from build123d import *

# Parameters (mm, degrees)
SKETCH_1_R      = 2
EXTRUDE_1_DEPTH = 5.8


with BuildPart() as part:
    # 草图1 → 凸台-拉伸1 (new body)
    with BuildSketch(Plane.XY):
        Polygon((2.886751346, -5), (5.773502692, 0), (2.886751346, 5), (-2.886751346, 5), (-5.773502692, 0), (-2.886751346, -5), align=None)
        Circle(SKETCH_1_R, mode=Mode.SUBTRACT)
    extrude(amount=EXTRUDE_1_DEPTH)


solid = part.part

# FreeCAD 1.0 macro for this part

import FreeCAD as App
import Part
import Sketcher
Q = App.Units.Quantity

doc = App.newDocument("Part")
body = doc.addObject("PartDesign::Body", "Body")

# Sketch on XY plane
sketch1 = body.newObject("Sketcher::SketchObject", "Sketch")
sketch1.AttachmentSupport = (doc.getObject("XY_Plane"), [""])
sketch1.MapMode = "FlatFace"
sketch1.addGeometry(Part.LineSegment(App.Vector(2.886751, -5, 0), App.Vector(5.773503, 0, 0)), False)
sketch1.addGeometry(Part.LineSegment(App.Vector(5.773503, 0, 0), App.Vector(2.886751, 5, 0)), False)
sketch1.addGeometry(Part.LineSegment(App.Vector(2.886751, 5, 0), App.Vector(-2.886751, 5, 0)), False)
sketch1.addGeometry(Part.LineSegment(App.Vector(-2.886751, 5, 0), App.Vector(-5.773503, 0, 0)), False)
sketch1.addGeometry(Part.LineSegment(App.Vector(-5.773503, 0, 0), App.Vector(-2.886751, -5, 0)), False)
sketch1.addGeometry(Part.LineSegment(App.Vector(-2.886751, -5, 0), App.Vector(2.886751, -5, 0)), False)
sketch1.addGeometry(Part.Circle(App.Vector(0, 0, 0), App.Vector(0, 0, 1), 2), False)
sketch1.addConstraint(Sketcher.Constraint("Coincident", 0, 2, 1, 1))
sketch1.addConstraint(Sketcher.Constraint("Coincident", 1, 2, 2, 1))
sketch1.addConstraint(Sketcher.Constraint("Coincident", 2, 2, 3, 1))
sketch1.addConstraint(Sketcher.Constraint("Coincident", 3, 2, 4, 1))
sketch1.addConstraint(Sketcher.Constraint("Coincident", 4, 2, 5, 1))
sketch1.addConstraint(Sketcher.Constraint("Coincident", 5, 2, 0, 1))
sketch1.addConstraint(Sketcher.Constraint("Horizontal", 2))
sketch1.addConstraint(Sketcher.Constraint("Horizontal", 5))
sketch1.addConstraint(Sketcher.Constraint("Coincident", 6, 3, -1, 1))
sketch1.addConstraint(Sketcher.Constraint("Symmetric", 0, 2, 3, 2, -1, 1))
sketch1.addConstraint(Sketcher.Constraint("Symmetric", 1, 2, 4, 2, -1, 1))
sketch1.addConstraint(Sketcher.Constraint("PointOnObject", 0, 2, -1))
sketch1.addConstraint(Sketcher.Constraint("Parallel", 0, 3))
sketch1.addConstraint(Sketcher.Constraint("Vertical", 2, 2, 4, 2))
sketch1.addConstraint(Sketcher.Constraint("Diameter", 6, Q("4 mm")))
sketch1.addConstraint(Sketcher.Constraint("Angle", 0, Q("60 deg")))
sketch1.addConstraint(Sketcher.Constraint("DistanceY", -1, 1, 1, 2, Q("5 mm")))
sketch1.addConstraint(Sketcher.Constraint("DistanceX", 2, 2, 2, 1, Q("5.773503 mm")))
pad1 = body.newObject("PartDesign::Pad", "Pad")
pad1.Profile = sketch1
pad1.Length = 5.8

doc.recompute()
